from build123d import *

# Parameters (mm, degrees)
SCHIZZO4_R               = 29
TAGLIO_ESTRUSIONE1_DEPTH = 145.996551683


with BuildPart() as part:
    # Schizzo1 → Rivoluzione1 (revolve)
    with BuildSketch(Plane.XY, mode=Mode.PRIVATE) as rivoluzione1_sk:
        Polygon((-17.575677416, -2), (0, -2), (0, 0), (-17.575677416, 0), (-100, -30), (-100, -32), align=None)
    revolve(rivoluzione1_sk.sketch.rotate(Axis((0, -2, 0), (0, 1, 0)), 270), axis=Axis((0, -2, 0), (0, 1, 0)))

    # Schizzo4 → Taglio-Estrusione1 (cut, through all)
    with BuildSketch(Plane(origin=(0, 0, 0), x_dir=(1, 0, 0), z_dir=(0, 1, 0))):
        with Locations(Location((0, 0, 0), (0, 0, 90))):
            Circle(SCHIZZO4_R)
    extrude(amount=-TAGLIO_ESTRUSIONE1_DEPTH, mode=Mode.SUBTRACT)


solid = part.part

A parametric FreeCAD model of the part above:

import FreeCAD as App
import Part
import Sketcher

V = App.Vector
Q = App.Units.Quantity

doc = App.newDocument("Part")
params = doc.addObject("Spreadsheet::Sheet", "Params")
for row, (alias, value) in enumerate([
    ("sketch1_height", "2 mm"),
    ("revolution_angle", "360 deg"),
    ("sketch2_diameter", "58 mm"),
], start=1):
    params.set(f"A{row}", alias)
    params.set(f"B{row}", "=" + value)
    params.setAlias(f"B{row}", alias)

body = doc.addObject("PartDesign::Body", "Body")

# Sketch on XY plane
sketch1 = body.newObject("Sketcher::SketchObject", "Sketch")
sketch1.AttachmentSupport = (doc.getObject("XY_Plane"), [""])
sketch1.MapMode = "FlatFace"
sketch1.addGeometry([
    Part.LineSegment(V(-17.6, -2, 0), V(0, -2, 0)),  # 0
    Part.LineSegment(V(0, -2, 0), V(0, 0, 0)),  # 1
    Part.LineSegment(V(0, 0, 0), V(-17.6, 0, 0)),  # 2
    Part.LineSegment(V(-17.6, 0, 0), V(-100, -30, 0)),  # 3
    Part.LineSegment(V(-100, -30, 0), V(-100, -32, 0)),  # 4
    Part.LineSegment(V(-100, -32, 0), V(-17.6, -2, 0)),  # 5
], False)
sketch1.addConstraint([
    Sketcher.Constraint("Coincident", 0, 2, 1, 1),
    Sketcher.Constraint("Coincident", 1, 2, 2, 1),
    Sketcher.Constraint("Coincident", 2, 2, 3, 1),
    Sketcher.Constraint("Coincident", 3, 2, 4, 1),
    Sketcher.Constraint("Coincident", 4, 2, 5, 1),
    Sketcher.Constraint("Coincident", 5, 2, 0, 1),
    Sketcher.Constraint("Horizontal", 0),
    Sketcher.Constraint("Vertical", 1),
    Sketcher.Constraint("Horizontal", 2),
    Sketcher.Constraint("Vertical", 4),
    Sketcher.Constraint("Coincident", 1, 2, -1, 1),
    Sketcher.Constraint("Parallel", 3, 5),
    Sketcher.Constraint("Vertical", 2, 2, 5, 2),
    Sketcher.Constraint("DistanceY", 1, 1, 1, 2, Q("2 mm")),
    Sketcher.Constraint("Angle", 3, Q("-160 deg")),
    Sketcher.Constraint("DistanceX", 3, 2, -1, 1, Q("100 mm")),
    Sketcher.Constraint("DistanceY", 3, 2, -1, 1, Q("30 mm")),
])
sketch1.setExpression("Constraints[13]", "Params.sketch1_height")
revolution = body.newObject("PartDesign::Revolution", "Revolution")
revolution.Profile = sketch1
revolution.ReferenceAxis = (sketch1, ["V_Axis"])
revolution.setExpression("Angle", "Params.revolution_angle")

# Sketch on XZ plane
sketch2 = body.newObject("Sketcher::SketchObject", "Sketch001")
sketch2.AttachmentSupport = (doc.getObject("XZ_Plane"), [""])
sketch2.MapMode = "FlatFace"
sketch2.addGeometry(Part.Circle(V(0, 0, 0), V(0, 0, 1), 29), False)
sketch2.addConstraint([
    Sketcher.Constraint("Coincident", 0, 3, -1, 1),
    Sketcher.Constraint("Diameter", 0, Q("58 mm")),
])
sketch2.setExpression("Constraints[1]", "Params.sketch2_diameter")
pocket1 = body.newObject("PartDesign::Pocket", "Pocket")
pocket1.Profile = sketch2
pocket1.Type = "ThroughAll"
pocket1.Reversed = True

doc.recompute()
